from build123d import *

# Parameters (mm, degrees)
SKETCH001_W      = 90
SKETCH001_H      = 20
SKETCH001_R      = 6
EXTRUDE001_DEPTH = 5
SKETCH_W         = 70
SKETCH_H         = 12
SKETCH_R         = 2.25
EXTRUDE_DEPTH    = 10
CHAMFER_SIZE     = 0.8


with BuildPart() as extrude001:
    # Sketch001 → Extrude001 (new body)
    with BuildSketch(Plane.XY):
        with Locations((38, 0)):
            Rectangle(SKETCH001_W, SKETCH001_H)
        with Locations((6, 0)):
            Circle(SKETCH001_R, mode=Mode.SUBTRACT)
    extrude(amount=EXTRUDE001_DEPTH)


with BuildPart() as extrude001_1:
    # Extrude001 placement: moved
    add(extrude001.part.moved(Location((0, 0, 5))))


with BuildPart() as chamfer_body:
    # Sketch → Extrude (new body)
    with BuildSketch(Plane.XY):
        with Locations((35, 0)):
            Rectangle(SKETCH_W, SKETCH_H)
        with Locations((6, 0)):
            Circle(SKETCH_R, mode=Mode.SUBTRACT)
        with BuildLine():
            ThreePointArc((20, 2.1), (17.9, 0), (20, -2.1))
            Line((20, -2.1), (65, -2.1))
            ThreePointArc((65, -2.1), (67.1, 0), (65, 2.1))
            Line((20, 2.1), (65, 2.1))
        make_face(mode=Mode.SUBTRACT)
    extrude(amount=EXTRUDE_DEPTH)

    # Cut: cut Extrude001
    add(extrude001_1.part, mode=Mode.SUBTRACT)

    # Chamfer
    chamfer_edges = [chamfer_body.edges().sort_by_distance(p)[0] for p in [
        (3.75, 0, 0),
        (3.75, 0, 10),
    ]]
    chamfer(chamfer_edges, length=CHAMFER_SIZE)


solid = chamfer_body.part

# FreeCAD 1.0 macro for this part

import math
import FreeCAD as App
import Part
import Sketcher
from FreeCAD import Vector
Q = App.Units.Quantity


def edges_at(feature, points):
    """Names of the edges that pass closest to the given points."""
    edges = feature.Shape.Edges
    near = lambda p: min(range(len(edges)), key=lambda i: edges[i].distToShape(Part.Vertex(*p))[0])
    return sorted({f"Edge{near(p) + 1}" for p in points})


def add_polygon(sketch, points):
    """Adds a closed chain of lines whose ends are joined by coincident constraints."""
    first, n = sketch.GeometryCount, len(points)
    for a, b in zip(points, points[1:] + points[:1]):
        sketch.addGeometry(Part.LineSegment(App.Vector(*a, 0), App.Vector(*b, 0)), False)
    for i in range(n):
        sketch.addConstraint(Sketcher.Constraint("Coincident", first + i, 2, first + (i + 1) % n, 1))

doc = App.newDocument("Part")
body = doc.addObject("PartDesign::Body", "Body")

# Sketch on XY plane
sketch1 = body.newObject("Sketcher::SketchObject", "Sketch")
sketch1.AttachmentSupport = (doc.getObject("XY_Plane"), [""])
sketch1.MapMode = "FlatFace"
add_polygon(sketch1, [(-7, 10), (-7, -10), (83, -10), (83, 10)])  # lines 0-3
sketch1.addGeometry(Part.Circle(Vector(6, 0, 0), Vector(0, 0, 1), 6), False)  # 4
sketch1.addConstraint([
    Sketcher.Constraint("Vertical", 0),
    Sketcher.Constraint("Horizontal", 1),
    Sketcher.Constraint("Vertical", 2),
    Sketcher.Constraint("Horizontal", 3),
    Sketcher.Constraint("PointOnObject", 4, 3, -1),
    Sketcher.Constraint("Diameter", 4, Q("12 mm")),
    Sketcher.Constraint("DistanceX", 1, 1, 1, 2, Q("90 mm")),
    Sketcher.Constraint("DistanceY", 0, 2, 0, 1, Q("20 mm")),
    Sketcher.Constraint("DistanceX", -1, 1, 4, 3, Q("6 mm")),
    Sketcher.Constraint("DistanceX", 0, 2, -1, 1, Q("7 mm")),
    Sketcher.Constraint("DistanceY", 0, 2, -1, 1, Q("10 mm")),
])
pad1 = body.newObject("PartDesign::Pad", "Pad")
pad1.Profile = sketch1
pad1.Length = 5
body2 = doc.addObject("PartDesign::Body", "Body001")
doc.recompute()

body.Placement = App.Placement(Vector(0, 0, 5), App.Rotation(Vector(0, 0, 1), 0))
boolean = body2.newObject("PartDesign::Boolean", "Boolean")
boolean.Type = "Fuse"
boolean.addObjects([body])
body3 = doc.addObject("PartDesign::Body", "Body002")

# Sketch on XY plane
sketch2 = body3.newObject("Sketcher::SketchObject", "Sketch001")
sketch2.AttachmentSupport = (doc.getObject("XY_Plane002"), [""])
sketch2.MapMode = "FlatFace"
add_polygon(sketch2, [(0, 6), (0, -6), (70, -6), (70, 6)])  # lines 0-3
sketch2.addGeometry(Part.Circle(Vector(6, 0, 0), Vector(0, 0, 1), 2.2), False)  # 4
sketch2.addGeometry(Part.ArcOfCircle(Part.Circle(Vector(20, 0, 0), Vector(0, 0, 1), 2.1), math.radians(90), math.radians(270)), False)  # 5
sketch2.addGeometry(Part.LineSegment(Vector(20, 2.1, 0), Vector(65, 2.1, 0)), False)  # 6
sketch2.addGeometry(Part.ArcOfCircle(Part.Circle(Vector(65, 0, 0), Vector(0, 0, 1), 2.1), math.radians(-90), math.radians(90)), False)  # 7
sketch2.addGeometry(Part.LineSegment(Vector(65, -2.1, 0), Vector(20, -2.1, 0)), False)  # 8
sketch2.addConstraint([
    Sketcher.Constraint("Tangent", 5, 1, 6, 1),
    Sketcher.Constraint("Tangent", 6, 2, 7, 2),
    Sketcher.Constraint("Tangent", 7, 1, 8, 1),
    Sketcher.Constraint("Tangent", 8, 2, 5, 2),
    Sketcher.Constraint("Vertical", 0),
    Sketcher.Constraint("Horizontal", 1),
    Sketcher.Constraint("Vertical", 2),
    Sketcher.Constraint("Horizontal", 3),
    Sketcher.Constraint("Horizontal", 6),
    Sketcher.Constraint("Horizontal", 8),
    Sketcher.Constraint("Symmetric", 0, 2, 3, 2, -1, 1),
    Sketcher.Constraint("PointOnObject", 4, 3, -1),
    Sketcher.Constraint("PointOnObject", 5, 3, -1),
    Sketcher.Constraint("Diameter", 4, Q("4.5 mm")),
    Sketcher.Constraint("Radius", 5, Q("2.1 mm")),
    Sketcher.Constraint("DistanceX", 1, 1, 1, 2, Q("70 mm")),
    Sketcher.Constraint("DistanceX", 6, 1, 6, 2, Q("45 mm")),
    Sketcher.Constraint("DistanceY", 0, 2, 0, 1, Q("12 mm")),
    Sketcher.Constraint("DistanceX", -1, 1, 4, 3, Q("6 mm")),
    Sketcher.Constraint("DistanceX", -1, 1, 5, 3, Q("20 mm")),
])
pad2 = body3.newObject("PartDesign::Pad", "Pad001")
pad2.Profile = sketch2
pad2.Length = 10
doc.recompute()

boolean2 = body3.newObject("PartDesign::Boolean", "Boolean001")
boolean2.Type = "Cut"
boolean2.addObjects([body2])
doc.recompute()

chamfer = body3.newObject("PartDesign::Chamfer", "Chamfer")
chamfer.Base = (boolean2, edges_at(boolean2, [(3.75, 0, 0), (3.75, 0, 10)]))
chamfer.Size = 0.8

doc.recompute()
